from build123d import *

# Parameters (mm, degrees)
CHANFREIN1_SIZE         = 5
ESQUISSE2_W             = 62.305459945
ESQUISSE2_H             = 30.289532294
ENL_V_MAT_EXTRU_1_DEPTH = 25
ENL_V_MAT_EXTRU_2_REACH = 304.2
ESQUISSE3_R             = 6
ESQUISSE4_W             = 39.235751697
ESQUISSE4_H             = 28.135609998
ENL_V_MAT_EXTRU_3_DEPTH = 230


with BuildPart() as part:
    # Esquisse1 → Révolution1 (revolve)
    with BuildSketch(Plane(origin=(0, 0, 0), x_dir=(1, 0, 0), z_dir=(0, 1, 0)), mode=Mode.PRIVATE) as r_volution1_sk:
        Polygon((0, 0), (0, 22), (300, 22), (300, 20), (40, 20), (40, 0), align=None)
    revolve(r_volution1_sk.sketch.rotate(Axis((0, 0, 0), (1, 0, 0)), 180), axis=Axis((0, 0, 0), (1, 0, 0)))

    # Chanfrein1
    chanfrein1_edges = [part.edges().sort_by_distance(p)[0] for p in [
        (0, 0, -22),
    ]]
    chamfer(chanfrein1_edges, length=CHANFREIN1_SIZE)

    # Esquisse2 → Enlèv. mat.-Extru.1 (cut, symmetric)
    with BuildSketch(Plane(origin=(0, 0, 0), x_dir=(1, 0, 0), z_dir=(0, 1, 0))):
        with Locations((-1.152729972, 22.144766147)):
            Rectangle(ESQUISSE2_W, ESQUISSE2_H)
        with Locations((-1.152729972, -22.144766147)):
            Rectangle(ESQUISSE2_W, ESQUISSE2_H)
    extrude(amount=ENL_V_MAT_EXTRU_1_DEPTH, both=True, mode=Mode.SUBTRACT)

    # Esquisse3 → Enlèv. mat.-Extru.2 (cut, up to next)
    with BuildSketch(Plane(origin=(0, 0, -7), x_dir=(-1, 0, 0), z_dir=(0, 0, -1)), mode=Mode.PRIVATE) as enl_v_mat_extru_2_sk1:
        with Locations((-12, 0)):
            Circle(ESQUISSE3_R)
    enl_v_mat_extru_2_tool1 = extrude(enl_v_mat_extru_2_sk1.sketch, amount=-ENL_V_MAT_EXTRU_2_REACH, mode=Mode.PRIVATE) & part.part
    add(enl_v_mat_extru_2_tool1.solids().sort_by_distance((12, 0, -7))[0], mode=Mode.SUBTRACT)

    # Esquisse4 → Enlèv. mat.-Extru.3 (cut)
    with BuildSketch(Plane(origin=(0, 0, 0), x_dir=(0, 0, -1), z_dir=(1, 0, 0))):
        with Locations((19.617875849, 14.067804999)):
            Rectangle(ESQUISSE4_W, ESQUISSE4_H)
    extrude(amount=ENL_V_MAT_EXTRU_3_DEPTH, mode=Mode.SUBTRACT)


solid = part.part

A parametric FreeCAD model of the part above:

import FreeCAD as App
import Part
import Sketcher


def edges_at(feature, points):
    """Names of the edges that pass closest to the given points."""
    edges = feature.Shape.Edges
    near = lambda p: min(range(len(edges)), key=lambda i: edges[i].distToShape(Part.Vertex(*p))[0])
    return sorted({f"Edge{near(p) + 1}" for p in points})


def add_polygon(sketch, points):
    """Adds a closed chain of lines whose ends are joined by coincident constraints."""
    first, n = sketch.GeometryCount, len(points)
    for a, b in zip(points, points[1:] + points[:1]):
        sketch.addGeometry(Part.LineSegment(App.Vector(*a, 0), App.Vector(*b, 0)), False)
    for i in range(n):
        sketch.addConstraint(Sketcher.Constraint("Coincident", first + i, 2, first + (i + 1) % n, 1))

doc = App.newDocument("Part")
body = doc.addObject("PartDesign::Body", "Body")

# Sketch on XZ plane
sketch1 = body.newObject("Sketcher::SketchObject", "Sketch")
sketch1.AttachmentSupport = (doc.getObject("XZ_Plane"), [""])
sketch1.MapMode = "FlatFace"
add_polygon(sketch1, [(0, -22), (0, 0), (40, 0), (40, -20), (300, -20), (300, -22)])  # lines 0-5
sketch1.addConstraint([
    Sketcher.Constraint("Vertical", 0),
    Sketcher.Constraint("Horizontal", 1),
    Sketcher.Constraint("Vertical", 2),
    Sketcher.Constraint("Horizontal", 3),
    Sketcher.Constraint("Vertical", 4),
    Sketcher.Constraint("Horizontal", 5),
    Sketcher.Constraint("Coincident", 0, 2, -1, 1),
    Sketcher.Constraint("DistanceX", 1, 1, 1, 2, 40.0),
    Sketcher.Constraint("DistanceX", 3, 1, 3, 2, 260.0),
    Sketcher.Constraint("DistanceY", 0, 1, 0, 2, 22.0),
    Sketcher.Constraint("DistanceY", 2, 2, 2, 1, 20.0),
])
revolution = body.newObject("PartDesign::Revolution", "Revolution")
revolution.Profile = sketch1
revolution.ReferenceAxis = (sketch1, ["H_Axis"])
revolution.Angle = 360
doc.recompute()

chamfer = body.newObject("PartDesign::Chamfer", "Chamfer")
chamfer.Base = (revolution, edges_at(revolution, [(0, 0, -22)]))
chamfer.Size = 5

# Sketch on XZ plane
sketch2 = body.newObject("Sketcher::SketchObject", "Sketch001")
sketch2.AttachmentSupport = (doc.getObject("XZ_Plane"), [""])
sketch2.MapMode = "FlatFace"
add_polygon(sketch2, [(-32.30546, -37.289532), (-32.30546, -7), (30, -7), (30, -37.289532)])  # lines 0-3
add_polygon(sketch2, [(-32.30546, 7), (-32.30546, 37.289532), (30, 37.289532), (30, 7)])  # lines 4-7
sketch2.addConstraint([
    Sketcher.Constraint("Vertical", 0),
    Sketcher.Constraint("Horizontal", 1),
    Sketcher.Constraint("Vertical", 2),
    Sketcher.Constraint("Horizontal", 3),
    Sketcher.Constraint("Vertical", 4),
    Sketcher.Constraint("Horizontal", 5),
    Sketcher.Constraint("Vertical", 6),
    Sketcher.Constraint("Horizontal", 7),
    Sketcher.Constraint("Symmetric", 3, 2, 4, 2, -1),
    Sketcher.Constraint("Symmetric", 1, 2, 6, 2, -1),
    Sketcher.Constraint("DistanceY", 0, 2, -1, 1, 7.0),
    Sketcher.Constraint("DistanceX", -1, 1, 1, 2, 30.0),
    Sketcher.Constraint("DistanceX", 1, 1, 1, 2, 62.30546),
    Sketcher.Constraint("DistanceY", 0, 1, 0, 2, 30.289532),
])
pocket1 = body.newObject("PartDesign::Pocket", "Pocket")
pocket1.Profile = sketch2
pocket1.Length = 50
pocket1.Midplane = True

# Sketch on XY plane
sketch3 = body.newObject("Sketcher::SketchObject", "Sketch002")
sketch3.AttachmentSupport = (doc.getObject("XY_Plane"), [""])
sketch3.MapMode = "FlatFace"
sketch3.AttachmentOffset = App.Placement(App.Vector(0, 0, -7), App.Rotation())
sketch3.addGeometry(Part.Circle(App.Vector(12, 0, 0), App.Vector(0, 0, 1), 6), False)
sketch3.addConstraint([
    Sketcher.Constraint("PointOnObject", 0, 3, -1),
    Sketcher.Constraint("Diameter", 0, 12.0),
    Sketcher.Constraint("DistanceX", -1, 1, 0, 3, 12.0),
])
pocket2 = body.newObject("PartDesign::Pocket", "Pocket001")
pocket2.Profile = sketch3
pocket2.Type = "UpToFirst"
pocket2.Reversed = True

# Sketch on YZ plane
sketch4 = body.newObject("Sketcher::SketchObject", "Sketch003")
sketch4.AttachmentSupport = (doc.getObject("YZ_Plane"), [""])
sketch4.MapMode = "FlatFace"
add_polygon(sketch4, [(28.13561, 0), (0, 0), (0, -39.235752), (28.13561, -39.235752)])  # lines 0-3
sketch4.addConstraint([
    Sketcher.Constraint("Horizontal", 0),
    Sketcher.Constraint("Vertical", 1),
    Sketcher.Constraint("Horizontal", 2),
    Sketcher.Constraint("Vertical", 3),
    Sketcher.Constraint("Coincident", 0, 2, -1, 1),
    Sketcher.Constraint("DistanceX", 0, 2, 0, 1, 28.13561),
    Sketcher.Constraint("DistanceY", 1, 2, 1, 1, 39.235752),
])
pocket3 = body.newObject("PartDesign::Pocket", "Pocket002")
pocket3.Profile = sketch4
pocket3.Length = 230
pocket3.Reversed = True

doc.recompute()
